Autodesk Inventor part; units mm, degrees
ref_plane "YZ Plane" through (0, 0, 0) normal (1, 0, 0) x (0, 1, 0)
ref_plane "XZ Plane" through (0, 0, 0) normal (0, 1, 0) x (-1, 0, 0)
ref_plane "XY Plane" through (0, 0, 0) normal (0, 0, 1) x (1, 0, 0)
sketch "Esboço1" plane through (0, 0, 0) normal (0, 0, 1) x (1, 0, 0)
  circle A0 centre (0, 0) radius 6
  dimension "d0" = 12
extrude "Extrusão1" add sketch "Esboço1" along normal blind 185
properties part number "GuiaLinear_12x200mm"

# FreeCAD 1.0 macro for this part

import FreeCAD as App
import Part
import Sketcher
Q = App.Units.Quantity

doc = App.newDocument("Part")
params = doc.addObject("Spreadsheet::Sheet", "Params")
for row, (alias, value) in enumerate([
    ("sketch1_diameter", "12 mm"),
    ("pad1_length", "185 mm"),
], start=1):
    params.set(f"A{row}", alias)
    params.set(f"B{row}", "=" + value)
    params.setAlias(f"B{row}", alias)

body = doc.addObject("PartDesign::Body", "Body")

sketch1 = doc.addObject("Sketcher::SketchObject", "Sketch")
body.addObject(sketch1)
sketch1.AttachmentSupport = (doc.XY_Plane, [""])
sketch1.MapMode = "FlatFace"
sketch1.addGeometry(Part.Circle(App.Vector(0, 0, 0), App.Vector(0, 0, 1), 6), False)
sketch1.addConstraint([
    Sketcher.Constraint("Coincident", 0, 3, -1, 1),
    Sketcher.Constraint("Diameter", 0, Q("12 mm")),
])
sketch1.setExpression("Constraints[1]", "Params.sketch1_diameter")
pad1 = doc.addObject("PartDesign::Pad", "Pad")
body.addObject(pad1)
pad1.Profile = sketch1
pad1.setExpression("Length", "Params.pad1_length")

doc.recompute()
